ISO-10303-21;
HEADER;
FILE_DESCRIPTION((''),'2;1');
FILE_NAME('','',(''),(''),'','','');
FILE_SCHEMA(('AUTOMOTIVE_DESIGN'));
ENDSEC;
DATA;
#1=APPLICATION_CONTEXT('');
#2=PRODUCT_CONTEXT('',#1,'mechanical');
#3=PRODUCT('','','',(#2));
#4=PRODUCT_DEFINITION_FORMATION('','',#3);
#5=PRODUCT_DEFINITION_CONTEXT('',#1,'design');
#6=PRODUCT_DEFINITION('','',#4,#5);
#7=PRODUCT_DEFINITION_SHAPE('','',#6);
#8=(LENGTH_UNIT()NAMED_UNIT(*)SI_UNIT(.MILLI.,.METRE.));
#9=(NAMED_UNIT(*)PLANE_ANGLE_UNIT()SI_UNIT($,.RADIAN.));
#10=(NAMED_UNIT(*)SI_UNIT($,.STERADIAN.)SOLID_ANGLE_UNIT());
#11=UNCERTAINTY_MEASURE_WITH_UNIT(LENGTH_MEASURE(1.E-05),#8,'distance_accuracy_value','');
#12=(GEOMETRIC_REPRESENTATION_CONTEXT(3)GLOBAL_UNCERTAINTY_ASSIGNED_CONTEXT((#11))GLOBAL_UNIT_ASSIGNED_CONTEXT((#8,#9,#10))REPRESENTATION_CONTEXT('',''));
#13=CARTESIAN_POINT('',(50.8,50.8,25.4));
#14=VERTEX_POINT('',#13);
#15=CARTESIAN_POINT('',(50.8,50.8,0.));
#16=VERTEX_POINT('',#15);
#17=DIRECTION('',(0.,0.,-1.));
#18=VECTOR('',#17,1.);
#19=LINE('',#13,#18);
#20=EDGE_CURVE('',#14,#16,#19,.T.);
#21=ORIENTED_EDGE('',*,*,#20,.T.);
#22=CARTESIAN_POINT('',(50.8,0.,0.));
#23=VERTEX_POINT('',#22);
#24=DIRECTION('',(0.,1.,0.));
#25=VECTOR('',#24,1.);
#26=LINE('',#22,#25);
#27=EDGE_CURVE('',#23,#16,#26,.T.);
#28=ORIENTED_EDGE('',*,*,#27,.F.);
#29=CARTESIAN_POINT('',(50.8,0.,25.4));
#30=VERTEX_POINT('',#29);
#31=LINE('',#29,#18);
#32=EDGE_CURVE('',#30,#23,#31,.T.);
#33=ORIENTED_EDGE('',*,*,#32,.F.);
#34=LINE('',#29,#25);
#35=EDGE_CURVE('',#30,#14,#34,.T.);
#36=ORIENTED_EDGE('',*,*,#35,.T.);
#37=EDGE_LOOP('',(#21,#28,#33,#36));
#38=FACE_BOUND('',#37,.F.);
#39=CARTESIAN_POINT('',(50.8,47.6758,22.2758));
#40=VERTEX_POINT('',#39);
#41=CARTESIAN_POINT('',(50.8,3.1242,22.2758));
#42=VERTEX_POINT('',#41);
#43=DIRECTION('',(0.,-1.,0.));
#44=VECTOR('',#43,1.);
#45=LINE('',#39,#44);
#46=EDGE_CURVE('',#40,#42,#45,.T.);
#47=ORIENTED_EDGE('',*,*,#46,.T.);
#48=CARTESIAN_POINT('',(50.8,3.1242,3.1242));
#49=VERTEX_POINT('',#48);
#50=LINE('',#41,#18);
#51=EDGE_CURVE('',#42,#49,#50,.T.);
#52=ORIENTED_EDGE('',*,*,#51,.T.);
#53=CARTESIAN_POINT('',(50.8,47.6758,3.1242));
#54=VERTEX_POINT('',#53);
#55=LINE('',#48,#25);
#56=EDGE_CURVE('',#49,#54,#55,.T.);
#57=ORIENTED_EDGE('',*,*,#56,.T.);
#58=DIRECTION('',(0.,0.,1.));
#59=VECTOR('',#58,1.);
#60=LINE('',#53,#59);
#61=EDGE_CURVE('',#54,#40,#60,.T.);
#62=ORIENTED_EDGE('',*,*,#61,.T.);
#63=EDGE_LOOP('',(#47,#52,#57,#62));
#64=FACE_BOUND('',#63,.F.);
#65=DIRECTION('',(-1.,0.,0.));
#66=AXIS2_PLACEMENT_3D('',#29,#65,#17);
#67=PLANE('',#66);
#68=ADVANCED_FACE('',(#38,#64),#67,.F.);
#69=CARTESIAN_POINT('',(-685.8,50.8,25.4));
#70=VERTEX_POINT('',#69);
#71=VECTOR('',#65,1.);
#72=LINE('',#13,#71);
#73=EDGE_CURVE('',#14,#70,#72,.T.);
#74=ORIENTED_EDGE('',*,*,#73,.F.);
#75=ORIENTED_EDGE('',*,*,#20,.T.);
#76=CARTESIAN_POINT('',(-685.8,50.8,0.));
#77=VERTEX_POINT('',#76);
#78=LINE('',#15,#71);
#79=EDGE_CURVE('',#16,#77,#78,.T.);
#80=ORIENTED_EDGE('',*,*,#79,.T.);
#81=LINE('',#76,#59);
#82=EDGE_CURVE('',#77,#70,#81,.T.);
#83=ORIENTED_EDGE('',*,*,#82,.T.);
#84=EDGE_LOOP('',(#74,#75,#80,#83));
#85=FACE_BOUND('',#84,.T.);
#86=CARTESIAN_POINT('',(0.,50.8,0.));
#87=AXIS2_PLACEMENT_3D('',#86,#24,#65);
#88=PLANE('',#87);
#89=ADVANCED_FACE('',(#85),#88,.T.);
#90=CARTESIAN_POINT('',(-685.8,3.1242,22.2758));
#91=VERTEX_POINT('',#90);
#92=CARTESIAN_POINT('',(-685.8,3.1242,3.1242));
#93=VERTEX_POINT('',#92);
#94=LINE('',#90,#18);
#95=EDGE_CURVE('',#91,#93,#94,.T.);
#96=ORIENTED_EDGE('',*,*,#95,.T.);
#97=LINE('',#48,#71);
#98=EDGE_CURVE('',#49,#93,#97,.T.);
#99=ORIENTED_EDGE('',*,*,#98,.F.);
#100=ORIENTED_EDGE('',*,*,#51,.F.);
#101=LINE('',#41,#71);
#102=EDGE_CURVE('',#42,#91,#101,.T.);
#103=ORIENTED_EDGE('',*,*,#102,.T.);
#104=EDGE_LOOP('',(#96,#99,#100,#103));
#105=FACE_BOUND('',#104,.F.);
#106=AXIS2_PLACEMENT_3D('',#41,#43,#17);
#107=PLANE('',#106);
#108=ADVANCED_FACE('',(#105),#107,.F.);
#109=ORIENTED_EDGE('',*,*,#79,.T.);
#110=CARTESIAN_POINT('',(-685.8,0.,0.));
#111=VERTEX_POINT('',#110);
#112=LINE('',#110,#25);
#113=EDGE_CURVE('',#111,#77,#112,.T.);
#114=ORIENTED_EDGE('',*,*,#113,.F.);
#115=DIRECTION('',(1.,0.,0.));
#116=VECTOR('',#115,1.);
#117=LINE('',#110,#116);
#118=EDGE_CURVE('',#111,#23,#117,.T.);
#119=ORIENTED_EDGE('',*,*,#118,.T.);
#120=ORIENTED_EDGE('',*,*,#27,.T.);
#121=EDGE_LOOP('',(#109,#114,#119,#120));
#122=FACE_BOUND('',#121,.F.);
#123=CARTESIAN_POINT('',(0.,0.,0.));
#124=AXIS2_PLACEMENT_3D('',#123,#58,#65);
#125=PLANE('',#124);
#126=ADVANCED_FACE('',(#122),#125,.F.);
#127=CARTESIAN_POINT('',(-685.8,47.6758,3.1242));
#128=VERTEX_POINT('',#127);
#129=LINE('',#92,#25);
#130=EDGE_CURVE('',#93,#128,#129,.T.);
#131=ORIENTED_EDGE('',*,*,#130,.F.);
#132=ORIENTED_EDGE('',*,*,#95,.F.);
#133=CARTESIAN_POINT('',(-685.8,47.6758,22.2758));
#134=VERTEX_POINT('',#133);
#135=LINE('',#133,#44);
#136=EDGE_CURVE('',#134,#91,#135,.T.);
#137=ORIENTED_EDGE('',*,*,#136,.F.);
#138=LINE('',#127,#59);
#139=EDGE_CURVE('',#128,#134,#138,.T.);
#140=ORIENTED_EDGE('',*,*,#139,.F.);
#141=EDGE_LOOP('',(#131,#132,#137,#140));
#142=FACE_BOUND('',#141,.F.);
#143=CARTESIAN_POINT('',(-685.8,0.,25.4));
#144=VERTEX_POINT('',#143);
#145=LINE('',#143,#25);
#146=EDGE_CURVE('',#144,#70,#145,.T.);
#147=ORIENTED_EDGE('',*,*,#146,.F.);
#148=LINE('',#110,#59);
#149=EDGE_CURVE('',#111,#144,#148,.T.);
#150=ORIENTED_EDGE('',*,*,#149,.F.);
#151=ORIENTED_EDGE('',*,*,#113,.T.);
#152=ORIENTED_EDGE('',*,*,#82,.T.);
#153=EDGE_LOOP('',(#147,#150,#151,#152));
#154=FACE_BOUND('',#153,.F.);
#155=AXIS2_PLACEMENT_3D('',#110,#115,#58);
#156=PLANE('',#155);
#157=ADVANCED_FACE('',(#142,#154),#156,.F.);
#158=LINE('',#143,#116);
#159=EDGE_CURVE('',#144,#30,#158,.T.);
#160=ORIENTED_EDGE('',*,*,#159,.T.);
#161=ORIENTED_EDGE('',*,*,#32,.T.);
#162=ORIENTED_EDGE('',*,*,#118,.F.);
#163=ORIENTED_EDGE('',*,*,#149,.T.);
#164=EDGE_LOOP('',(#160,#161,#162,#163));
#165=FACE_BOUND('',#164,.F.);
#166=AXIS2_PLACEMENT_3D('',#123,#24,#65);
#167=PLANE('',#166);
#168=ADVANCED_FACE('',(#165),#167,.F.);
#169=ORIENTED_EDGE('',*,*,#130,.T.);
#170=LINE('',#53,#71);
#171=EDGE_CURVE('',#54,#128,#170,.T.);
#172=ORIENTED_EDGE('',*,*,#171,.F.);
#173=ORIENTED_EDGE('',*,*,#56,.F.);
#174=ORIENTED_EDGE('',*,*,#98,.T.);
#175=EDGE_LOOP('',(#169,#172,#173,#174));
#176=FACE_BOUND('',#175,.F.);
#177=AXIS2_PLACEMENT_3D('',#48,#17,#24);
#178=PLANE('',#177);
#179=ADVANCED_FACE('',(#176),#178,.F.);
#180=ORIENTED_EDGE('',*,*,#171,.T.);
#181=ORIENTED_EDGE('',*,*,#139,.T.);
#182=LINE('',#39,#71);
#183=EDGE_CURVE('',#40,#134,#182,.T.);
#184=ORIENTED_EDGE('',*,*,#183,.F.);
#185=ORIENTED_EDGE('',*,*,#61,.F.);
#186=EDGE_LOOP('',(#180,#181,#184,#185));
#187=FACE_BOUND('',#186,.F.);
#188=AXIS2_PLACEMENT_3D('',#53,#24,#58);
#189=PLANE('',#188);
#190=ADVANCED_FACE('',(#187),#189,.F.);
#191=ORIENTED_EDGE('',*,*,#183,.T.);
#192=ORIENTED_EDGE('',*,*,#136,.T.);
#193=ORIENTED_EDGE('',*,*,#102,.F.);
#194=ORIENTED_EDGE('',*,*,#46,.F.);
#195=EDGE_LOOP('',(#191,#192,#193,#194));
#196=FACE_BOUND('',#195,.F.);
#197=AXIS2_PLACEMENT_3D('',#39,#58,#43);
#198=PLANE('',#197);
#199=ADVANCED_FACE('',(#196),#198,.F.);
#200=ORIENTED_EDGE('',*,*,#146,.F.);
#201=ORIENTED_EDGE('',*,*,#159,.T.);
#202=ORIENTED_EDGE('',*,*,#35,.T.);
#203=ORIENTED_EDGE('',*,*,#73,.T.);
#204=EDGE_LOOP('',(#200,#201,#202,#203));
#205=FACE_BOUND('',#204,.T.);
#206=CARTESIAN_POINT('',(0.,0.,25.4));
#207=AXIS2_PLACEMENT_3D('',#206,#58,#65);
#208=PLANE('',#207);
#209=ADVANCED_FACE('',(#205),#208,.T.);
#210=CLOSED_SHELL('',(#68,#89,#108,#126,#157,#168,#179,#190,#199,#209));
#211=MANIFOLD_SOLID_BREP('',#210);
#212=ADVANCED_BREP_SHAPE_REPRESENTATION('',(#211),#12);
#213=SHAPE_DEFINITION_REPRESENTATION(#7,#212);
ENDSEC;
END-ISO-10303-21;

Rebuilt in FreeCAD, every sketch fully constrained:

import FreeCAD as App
import Part
import Sketcher
Q = App.Units.Quantity


def add_polygon(sketch, points):
    """Adds a closed chain of lines whose ends are joined by coincident constraints."""
    first, n = sketch.GeometryCount, len(points)
    for a, b in zip(points, points[1:] + points[:1]):
        sketch.addGeometry(Part.LineSegment(App.Vector(*a, 0), App.Vector(*b, 0)), False)
    for i in range(n):
        sketch.addConstraint(Sketcher.Constraint("Coincident", first + i, 2, first + (i + 1) % n, 1))

doc = App.newDocument("Part")
body = doc.addObject("PartDesign::Body", "Body")

# Sketch on XZ plane
sketch1 = body.newObject("Sketcher::SketchObject", "Sketch")
sketch1.AttachmentSupport = (doc.getObject("XZ_Plane"), [""])
sketch1.MapMode = "FlatFace"
add_polygon(sketch1, [(-686, 25), (51, 25), (51, 0), (-686, 0)])  # lines 0-3
sketch1.addConstraint(Sketcher.Constraint("Horizontal", 0))
sketch1.addConstraint(Sketcher.Constraint("Vertical", 1))
sketch1.addConstraint(Sketcher.Constraint("Horizontal", 2))
sketch1.addConstraint(Sketcher.Constraint("Vertical", 3))
sketch1.addConstraint(Sketcher.Constraint("PointOnObject", 1, 2, -1))
sketch1.addConstraint(Sketcher.Constraint("DistanceY", 1, 2, 1, 1, Q("1 in")))
sketch1.addConstraint(Sketcher.Constraint("DistanceX", -1, 1, 0, 2, Q("2 in")))
sketch1.addConstraint(Sketcher.Constraint("DistanceX", 2, 2, -1, 1, Q("27 in")))
pad1 = body.newObject("PartDesign::Pad", "Pad")
pad1.Profile = sketch1
pad1.Length = Q("2 in")
pad1.Reversed = True

# Sketch on YZ plane
sketch2 = body.newObject("Sketcher::SketchObject", "Sketch001")
sketch2.AttachmentSupport = (doc.getObject("YZ_Plane"), [""])
sketch2.MapMode = "FlatFace"
sketch2.AttachmentOffset = App.Placement(App.Vector(0, 0, 2 * 25.4), App.Rotation())
add_polygon(sketch2, [(48, 3), (48, 22), (3, 22), (3, 3)])  # lines 0-3
sketch2.addConstraint(Sketcher.Constraint("Vertical", 0))
sketch2.addConstraint(Sketcher.Constraint("Horizontal", 1))
sketch2.addConstraint(Sketcher.Constraint("Vertical", 2))
sketch2.addConstraint(Sketcher.Constraint("Horizontal", 3))
sketch2.addConstraint(Sketcher.Constraint("DistanceX", -1, 1, 1, 2, Q("0.123 in")))
sketch2.addConstraint(Sketcher.Constraint("DistanceY", -1, 1, 2, 2, Q("0.123 in")))
sketch2.addConstraint(Sketcher.Constraint("DistanceX", 1, 2, 1, 1, Q("1.754 in")))
sketch2.addConstraint(Sketcher.Constraint("DistanceY", 0, 1, 0, 2, Q("0.754 in")))
pocket1 = body.newObject("PartDesign::Pocket", "Pocket")
pocket1.Profile = sketch2
pocket1.Length = Q("29 in")

doc.recompute()
